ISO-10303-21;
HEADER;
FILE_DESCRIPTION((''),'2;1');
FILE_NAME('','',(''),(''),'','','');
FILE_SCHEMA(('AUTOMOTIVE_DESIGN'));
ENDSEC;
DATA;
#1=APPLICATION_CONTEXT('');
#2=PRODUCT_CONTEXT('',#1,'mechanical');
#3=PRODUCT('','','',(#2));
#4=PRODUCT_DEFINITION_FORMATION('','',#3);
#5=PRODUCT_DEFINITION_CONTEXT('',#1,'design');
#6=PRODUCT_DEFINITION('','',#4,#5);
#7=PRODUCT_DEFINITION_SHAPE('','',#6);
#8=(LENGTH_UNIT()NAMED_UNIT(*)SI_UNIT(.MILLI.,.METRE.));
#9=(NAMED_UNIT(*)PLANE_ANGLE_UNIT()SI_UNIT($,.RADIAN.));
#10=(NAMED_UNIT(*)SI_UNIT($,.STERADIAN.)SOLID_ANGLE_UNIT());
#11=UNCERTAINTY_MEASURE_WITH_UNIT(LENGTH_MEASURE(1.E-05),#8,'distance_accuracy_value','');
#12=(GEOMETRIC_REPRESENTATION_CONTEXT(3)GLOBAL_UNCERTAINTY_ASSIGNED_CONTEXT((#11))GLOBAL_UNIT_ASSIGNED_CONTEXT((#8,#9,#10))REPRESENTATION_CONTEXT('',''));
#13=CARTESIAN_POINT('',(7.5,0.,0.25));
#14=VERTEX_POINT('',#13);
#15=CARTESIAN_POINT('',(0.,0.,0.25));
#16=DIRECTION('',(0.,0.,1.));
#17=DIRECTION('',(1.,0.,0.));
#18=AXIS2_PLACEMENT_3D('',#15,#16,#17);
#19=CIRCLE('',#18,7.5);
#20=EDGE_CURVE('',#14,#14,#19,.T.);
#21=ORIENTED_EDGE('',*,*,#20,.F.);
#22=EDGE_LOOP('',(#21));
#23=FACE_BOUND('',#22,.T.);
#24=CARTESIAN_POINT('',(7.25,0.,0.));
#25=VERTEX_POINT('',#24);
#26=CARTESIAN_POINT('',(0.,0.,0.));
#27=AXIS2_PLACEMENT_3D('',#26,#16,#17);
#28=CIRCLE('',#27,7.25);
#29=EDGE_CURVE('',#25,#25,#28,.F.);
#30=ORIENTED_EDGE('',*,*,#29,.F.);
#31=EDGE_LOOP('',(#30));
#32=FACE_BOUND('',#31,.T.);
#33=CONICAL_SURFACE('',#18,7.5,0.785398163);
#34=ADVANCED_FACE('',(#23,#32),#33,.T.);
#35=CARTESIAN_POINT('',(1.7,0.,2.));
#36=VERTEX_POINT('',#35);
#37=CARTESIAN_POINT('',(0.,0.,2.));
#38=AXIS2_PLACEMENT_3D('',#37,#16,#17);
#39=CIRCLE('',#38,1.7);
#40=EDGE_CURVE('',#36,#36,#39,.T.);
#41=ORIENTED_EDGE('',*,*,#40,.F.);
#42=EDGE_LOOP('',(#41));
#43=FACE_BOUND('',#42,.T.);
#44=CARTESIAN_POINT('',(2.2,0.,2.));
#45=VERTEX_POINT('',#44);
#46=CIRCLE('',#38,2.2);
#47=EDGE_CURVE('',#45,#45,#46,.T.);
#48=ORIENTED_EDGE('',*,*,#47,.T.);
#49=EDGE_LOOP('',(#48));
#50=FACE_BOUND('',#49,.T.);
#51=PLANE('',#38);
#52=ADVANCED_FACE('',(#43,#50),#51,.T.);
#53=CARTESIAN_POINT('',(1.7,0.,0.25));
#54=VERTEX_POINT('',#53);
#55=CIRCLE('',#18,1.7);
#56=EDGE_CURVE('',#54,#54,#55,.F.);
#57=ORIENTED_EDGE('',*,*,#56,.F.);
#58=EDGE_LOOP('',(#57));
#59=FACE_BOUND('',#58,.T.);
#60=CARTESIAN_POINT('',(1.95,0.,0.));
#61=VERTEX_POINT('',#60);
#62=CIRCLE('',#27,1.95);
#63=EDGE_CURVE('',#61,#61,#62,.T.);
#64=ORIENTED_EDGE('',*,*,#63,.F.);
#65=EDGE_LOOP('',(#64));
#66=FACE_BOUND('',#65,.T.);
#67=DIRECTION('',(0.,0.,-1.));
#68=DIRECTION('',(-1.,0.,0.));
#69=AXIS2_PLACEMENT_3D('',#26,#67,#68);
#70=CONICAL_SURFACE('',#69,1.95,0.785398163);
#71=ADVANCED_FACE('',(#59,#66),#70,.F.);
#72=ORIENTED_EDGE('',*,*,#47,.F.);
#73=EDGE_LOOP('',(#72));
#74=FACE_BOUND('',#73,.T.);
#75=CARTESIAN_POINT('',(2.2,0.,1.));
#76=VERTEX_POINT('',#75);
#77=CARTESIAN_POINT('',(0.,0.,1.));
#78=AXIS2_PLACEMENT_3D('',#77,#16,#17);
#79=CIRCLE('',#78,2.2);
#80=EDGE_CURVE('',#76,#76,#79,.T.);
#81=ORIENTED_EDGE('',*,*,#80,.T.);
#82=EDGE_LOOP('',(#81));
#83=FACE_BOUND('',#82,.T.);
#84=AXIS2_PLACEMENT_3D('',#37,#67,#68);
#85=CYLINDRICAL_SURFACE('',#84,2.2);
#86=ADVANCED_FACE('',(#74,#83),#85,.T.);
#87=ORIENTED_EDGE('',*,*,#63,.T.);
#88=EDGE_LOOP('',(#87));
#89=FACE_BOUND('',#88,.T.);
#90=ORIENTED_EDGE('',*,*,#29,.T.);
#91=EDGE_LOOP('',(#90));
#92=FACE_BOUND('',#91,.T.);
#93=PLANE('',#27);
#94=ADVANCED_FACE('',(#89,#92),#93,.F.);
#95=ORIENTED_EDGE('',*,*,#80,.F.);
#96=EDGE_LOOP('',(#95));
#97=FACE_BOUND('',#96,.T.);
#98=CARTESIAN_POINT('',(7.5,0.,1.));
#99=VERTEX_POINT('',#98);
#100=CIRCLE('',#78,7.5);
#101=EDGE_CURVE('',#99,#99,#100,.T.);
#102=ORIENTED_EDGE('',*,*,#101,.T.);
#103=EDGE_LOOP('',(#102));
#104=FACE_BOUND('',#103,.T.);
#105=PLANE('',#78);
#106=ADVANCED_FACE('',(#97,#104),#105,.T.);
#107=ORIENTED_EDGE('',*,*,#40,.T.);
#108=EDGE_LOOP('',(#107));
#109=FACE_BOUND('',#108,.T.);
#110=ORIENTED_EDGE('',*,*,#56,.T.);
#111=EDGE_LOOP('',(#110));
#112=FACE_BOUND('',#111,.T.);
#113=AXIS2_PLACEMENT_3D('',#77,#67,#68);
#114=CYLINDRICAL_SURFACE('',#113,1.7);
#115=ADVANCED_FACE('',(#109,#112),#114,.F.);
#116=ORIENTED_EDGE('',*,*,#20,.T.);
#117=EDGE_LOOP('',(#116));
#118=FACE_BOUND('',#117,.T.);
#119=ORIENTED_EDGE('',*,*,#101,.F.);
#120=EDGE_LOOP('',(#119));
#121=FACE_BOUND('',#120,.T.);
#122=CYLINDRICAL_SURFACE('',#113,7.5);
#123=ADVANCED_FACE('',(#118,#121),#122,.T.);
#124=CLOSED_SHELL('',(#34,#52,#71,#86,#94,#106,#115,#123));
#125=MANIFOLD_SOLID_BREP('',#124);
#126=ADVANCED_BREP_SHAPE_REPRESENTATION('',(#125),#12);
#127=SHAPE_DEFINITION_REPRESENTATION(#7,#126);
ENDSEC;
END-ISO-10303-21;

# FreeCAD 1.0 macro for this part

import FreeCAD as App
import Part
import Sketcher


def edges_at(feature, points):
    """Names of the edges that pass closest to the given points."""
    edges = feature.Shape.Edges
    near = lambda p: min(range(len(edges)), key=lambda i: edges[i].distToShape(Part.Vertex(*p))[0])
    return sorted({f"Edge{near(p) + 1}" for p in points})

doc = App.newDocument("Part")
body = doc.addObject("PartDesign::Body", "Body")

# Sketch on XY plane
sketch1 = body.newObject("Sketcher::SketchObject", "Sketch")
sketch1.AttachmentSupport = (doc.getObject("XY_Plane"), [""])
sketch1.MapMode = "FlatFace"
sketch1.addGeometry([
    Part.Circle(App.Vector(0, 0, 0), App.Vector(0, 0, 1), 7.5),
    Part.Circle(App.Vector(0, 0, 0), App.Vector(0, 0, 1), 1.7),
], False)
sketch1.addConstraint([
    Sketcher.Constraint("Coincident", 0, 3, -1, 1),
    Sketcher.Constraint("Coincident", 1, 3, -1, 1),
    Sketcher.Constraint("Diameter", 0, 15.0),
    Sketcher.Constraint("Diameter", 1, 3.4),
])
pad1 = body.newObject("PartDesign::Pad", "Pad")
pad1.Profile = sketch1
pad1.Length = 1

# Sketch on XY plane
sketch2 = body.newObject("Sketcher::SketchObject", "Sketch001")
sketch2.AttachmentSupport = (doc.getObject("XY_Plane"), [""])
sketch2.MapMode = "FlatFace"
sketch2.AttachmentOffset = App.Placement(App.Vector(0, 0, 1), App.Rotation())
sketch2.addGeometry([
    Part.Circle(App.Vector(0, 0, 0), App.Vector(0, 0, 1), 2.2),
    Part.Circle(App.Vector(0, 0, 0), App.Vector(0, 0, 1), 1.7),
], False)
sketch2.addConstraint([
    Sketcher.Constraint("Coincident", 0, 3, -1, 1),
    Sketcher.Constraint("Coincident", 1, 3, -1, 1),
    Sketcher.Constraint("Diameter", 0, 4.4),
    Sketcher.Constraint("Diameter", 1, 3.4),
])
pad2 = body.newObject("PartDesign::Pad", "Pad001")
pad2.Profile = sketch2
pad2.Length = 1
doc.recompute()

chamfer = body.newObject("PartDesign::Chamfer", "Chamfer")
chamfer.Base = (pad2, edges_at(pad2, [(-7.5, 0, 0), (-1.7, 0, 0)]))
chamfer.Size = 0.25

doc.recompute()
